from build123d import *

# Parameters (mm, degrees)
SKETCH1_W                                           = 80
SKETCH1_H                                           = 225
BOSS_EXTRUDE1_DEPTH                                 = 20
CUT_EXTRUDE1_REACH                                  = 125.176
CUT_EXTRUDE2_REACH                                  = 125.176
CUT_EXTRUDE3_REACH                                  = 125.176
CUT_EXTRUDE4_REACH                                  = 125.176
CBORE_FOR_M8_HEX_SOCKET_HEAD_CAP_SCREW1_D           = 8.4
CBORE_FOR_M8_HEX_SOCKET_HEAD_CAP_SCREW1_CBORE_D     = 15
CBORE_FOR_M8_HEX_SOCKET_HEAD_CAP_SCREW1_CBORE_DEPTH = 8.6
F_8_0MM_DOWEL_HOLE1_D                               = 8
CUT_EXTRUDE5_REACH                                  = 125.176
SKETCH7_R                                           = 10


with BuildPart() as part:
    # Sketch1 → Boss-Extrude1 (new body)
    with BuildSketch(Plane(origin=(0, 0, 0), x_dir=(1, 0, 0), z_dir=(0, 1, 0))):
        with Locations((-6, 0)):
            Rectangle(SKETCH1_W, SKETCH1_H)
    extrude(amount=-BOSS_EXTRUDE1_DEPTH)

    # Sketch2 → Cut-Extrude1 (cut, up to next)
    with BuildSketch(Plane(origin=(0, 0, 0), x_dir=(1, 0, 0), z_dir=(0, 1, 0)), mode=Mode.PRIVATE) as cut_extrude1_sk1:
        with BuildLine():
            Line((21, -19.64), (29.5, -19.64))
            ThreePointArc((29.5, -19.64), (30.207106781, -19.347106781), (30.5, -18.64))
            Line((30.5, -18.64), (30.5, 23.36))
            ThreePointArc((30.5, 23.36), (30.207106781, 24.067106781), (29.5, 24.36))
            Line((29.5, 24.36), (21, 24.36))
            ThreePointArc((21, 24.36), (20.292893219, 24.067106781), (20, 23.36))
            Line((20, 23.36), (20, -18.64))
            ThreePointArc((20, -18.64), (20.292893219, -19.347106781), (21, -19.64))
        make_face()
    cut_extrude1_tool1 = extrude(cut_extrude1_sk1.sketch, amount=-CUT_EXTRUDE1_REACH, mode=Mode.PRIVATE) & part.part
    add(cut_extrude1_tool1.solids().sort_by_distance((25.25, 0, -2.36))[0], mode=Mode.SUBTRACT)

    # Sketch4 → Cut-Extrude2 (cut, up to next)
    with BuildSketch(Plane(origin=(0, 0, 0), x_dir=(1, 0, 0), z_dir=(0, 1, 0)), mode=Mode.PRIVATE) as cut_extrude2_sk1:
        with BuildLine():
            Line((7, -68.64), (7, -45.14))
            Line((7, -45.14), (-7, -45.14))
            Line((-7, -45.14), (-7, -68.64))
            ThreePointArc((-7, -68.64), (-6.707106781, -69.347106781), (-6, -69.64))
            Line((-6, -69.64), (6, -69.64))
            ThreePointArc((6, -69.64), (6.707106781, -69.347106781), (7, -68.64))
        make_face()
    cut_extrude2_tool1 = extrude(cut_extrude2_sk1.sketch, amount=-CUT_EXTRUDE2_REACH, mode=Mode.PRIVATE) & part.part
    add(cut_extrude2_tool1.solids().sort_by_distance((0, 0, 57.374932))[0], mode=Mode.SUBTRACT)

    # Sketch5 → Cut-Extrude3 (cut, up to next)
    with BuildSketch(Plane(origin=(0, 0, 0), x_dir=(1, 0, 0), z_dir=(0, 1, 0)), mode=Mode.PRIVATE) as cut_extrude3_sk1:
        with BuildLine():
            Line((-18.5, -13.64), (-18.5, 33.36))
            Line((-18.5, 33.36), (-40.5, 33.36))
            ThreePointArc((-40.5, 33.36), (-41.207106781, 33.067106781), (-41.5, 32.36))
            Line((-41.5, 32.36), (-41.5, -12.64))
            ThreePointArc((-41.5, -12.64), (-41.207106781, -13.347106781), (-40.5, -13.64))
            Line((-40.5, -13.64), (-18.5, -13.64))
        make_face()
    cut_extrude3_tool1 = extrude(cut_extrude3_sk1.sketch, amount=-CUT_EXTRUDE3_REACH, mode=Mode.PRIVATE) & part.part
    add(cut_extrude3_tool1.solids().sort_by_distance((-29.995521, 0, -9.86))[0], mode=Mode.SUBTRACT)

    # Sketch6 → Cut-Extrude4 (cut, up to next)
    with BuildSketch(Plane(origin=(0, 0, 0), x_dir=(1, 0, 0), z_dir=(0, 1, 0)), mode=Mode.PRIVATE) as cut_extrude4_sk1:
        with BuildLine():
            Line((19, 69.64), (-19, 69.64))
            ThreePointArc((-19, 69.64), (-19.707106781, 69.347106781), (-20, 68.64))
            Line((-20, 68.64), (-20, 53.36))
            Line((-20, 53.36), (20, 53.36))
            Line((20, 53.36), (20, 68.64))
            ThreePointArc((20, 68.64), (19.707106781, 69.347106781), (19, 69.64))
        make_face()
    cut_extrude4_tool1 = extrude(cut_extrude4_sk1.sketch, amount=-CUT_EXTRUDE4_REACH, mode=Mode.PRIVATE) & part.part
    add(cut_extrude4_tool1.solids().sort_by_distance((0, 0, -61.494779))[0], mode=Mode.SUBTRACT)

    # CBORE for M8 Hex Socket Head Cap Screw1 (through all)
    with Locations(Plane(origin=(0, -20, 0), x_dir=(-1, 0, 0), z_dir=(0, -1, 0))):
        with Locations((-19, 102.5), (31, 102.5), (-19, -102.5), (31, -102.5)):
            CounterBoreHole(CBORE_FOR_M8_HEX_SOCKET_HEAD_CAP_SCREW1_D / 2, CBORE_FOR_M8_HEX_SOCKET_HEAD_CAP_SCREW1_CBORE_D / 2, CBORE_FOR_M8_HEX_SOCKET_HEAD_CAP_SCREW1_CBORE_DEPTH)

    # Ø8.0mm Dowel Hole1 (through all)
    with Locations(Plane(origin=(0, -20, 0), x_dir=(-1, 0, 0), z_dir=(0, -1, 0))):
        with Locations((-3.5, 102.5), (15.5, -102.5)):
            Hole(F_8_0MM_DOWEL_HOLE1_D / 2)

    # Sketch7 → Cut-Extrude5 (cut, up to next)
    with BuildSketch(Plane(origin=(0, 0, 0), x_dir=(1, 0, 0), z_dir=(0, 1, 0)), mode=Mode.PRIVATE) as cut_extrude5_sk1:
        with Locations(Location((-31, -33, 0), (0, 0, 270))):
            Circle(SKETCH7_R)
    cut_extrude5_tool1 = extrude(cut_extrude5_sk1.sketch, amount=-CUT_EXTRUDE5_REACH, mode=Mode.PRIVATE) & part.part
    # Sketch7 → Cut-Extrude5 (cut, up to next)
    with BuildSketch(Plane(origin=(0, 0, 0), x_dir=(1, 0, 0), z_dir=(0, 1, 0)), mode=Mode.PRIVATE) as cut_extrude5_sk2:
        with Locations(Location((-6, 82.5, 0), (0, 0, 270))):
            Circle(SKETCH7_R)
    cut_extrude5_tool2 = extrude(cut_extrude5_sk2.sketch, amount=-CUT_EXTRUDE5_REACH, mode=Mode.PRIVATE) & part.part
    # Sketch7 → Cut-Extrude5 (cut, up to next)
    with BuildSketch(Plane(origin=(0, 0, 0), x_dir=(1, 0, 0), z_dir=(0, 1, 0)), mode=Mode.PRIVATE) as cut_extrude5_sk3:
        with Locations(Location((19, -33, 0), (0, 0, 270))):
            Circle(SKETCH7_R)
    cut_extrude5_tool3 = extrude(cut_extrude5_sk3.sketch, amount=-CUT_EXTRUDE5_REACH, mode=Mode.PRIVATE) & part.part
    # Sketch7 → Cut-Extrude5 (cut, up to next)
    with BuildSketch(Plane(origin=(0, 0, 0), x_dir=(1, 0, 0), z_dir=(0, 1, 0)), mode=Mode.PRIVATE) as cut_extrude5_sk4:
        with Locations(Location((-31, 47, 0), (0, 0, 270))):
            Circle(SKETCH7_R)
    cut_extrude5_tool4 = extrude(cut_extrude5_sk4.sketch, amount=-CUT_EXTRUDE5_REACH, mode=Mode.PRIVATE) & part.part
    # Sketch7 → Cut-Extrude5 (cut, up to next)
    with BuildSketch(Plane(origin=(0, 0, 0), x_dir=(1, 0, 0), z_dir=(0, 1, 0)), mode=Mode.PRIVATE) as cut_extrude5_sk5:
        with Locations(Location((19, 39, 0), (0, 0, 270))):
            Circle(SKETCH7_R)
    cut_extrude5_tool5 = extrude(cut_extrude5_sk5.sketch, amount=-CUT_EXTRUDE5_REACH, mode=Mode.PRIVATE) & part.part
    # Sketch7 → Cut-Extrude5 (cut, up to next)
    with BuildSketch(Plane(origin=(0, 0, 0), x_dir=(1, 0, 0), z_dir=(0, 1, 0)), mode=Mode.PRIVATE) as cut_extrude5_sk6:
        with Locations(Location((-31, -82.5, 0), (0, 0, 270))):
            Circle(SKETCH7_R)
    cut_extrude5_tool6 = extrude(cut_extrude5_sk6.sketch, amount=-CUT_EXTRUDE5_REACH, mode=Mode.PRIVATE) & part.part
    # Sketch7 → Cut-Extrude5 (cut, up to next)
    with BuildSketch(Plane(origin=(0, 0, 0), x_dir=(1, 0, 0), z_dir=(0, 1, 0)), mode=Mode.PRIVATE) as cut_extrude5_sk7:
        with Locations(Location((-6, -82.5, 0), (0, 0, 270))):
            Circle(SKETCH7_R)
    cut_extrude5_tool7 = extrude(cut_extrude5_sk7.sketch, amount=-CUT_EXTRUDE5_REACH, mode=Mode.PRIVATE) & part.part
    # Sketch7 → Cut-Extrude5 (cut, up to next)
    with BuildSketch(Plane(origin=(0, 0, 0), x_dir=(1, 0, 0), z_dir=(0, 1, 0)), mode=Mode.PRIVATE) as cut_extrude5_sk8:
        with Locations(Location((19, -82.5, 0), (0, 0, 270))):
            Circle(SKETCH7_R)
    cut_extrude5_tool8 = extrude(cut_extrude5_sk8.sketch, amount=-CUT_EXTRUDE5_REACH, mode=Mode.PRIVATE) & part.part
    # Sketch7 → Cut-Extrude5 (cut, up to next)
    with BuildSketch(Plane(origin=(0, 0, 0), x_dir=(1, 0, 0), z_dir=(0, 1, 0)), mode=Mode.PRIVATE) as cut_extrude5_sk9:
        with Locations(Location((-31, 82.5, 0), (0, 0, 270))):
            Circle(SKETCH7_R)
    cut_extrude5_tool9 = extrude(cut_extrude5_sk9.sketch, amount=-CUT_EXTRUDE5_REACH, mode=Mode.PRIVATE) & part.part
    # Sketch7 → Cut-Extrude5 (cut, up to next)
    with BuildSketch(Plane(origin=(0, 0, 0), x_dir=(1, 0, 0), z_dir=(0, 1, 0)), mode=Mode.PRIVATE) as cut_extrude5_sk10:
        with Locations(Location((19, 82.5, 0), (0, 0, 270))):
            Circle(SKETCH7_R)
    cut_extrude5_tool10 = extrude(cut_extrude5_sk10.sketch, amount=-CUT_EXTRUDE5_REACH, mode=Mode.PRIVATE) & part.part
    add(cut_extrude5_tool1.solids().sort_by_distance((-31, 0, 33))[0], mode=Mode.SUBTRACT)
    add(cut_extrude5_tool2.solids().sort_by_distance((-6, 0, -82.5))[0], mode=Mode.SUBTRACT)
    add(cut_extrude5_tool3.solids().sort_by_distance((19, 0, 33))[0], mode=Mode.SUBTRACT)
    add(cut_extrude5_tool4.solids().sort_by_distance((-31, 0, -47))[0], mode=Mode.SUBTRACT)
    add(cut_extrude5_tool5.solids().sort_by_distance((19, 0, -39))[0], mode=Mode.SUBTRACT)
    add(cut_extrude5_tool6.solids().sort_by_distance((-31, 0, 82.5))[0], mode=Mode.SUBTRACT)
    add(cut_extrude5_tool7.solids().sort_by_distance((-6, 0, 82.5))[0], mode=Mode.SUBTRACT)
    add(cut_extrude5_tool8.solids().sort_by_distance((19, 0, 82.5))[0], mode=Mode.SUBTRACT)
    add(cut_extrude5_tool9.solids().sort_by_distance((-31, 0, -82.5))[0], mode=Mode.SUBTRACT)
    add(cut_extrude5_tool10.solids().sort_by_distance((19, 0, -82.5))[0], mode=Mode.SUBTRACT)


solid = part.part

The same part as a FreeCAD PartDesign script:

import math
import FreeCAD as App
import Part
import Sketcher

V = App.Vector


def add_polygon(sketch, points):
    """Adds a closed chain of lines whose ends are joined by coincident constraints."""
    first, n = sketch.GeometryCount, len(points)
    for a, b in zip(points, points[1:] + points[:1]):
        sketch.addGeometry(Part.LineSegment(App.Vector(*a, 0), App.Vector(*b, 0)), False)
    for i in range(n):
        sketch.addConstraint(Sketcher.Constraint("Coincident", first + i, 2, first + (i + 1) % n, 1))

doc = App.newDocument("Part")
params = doc.addObject("Spreadsheet::Sheet", "Params")
for row, (alias, value) in enumerate([
    ("sketch1_width", "80 mm"),
    ("sketch1_height", "225 mm"),
    ("pad1_length", "20 mm"),
    ("sketch2_radius", "1 mm"),
    ("sketch2_height", "42 mm"),
    ("sketch2_width", "8.5 mm"),
    ("sketch3_radius", "1 mm"),
    ("sketch3_width", "14 mm"),
    ("sketch3_height", "23.5 mm"),
    ("sketch4_radius", "1 mm"),
    ("sketch4_width", "22 mm"),
    ("sketch4_height", "47 mm"),
    ("sketch5_radius", "1 mm"),
    ("sketch5_width", "38 mm"),
    ("sketch5_height", "15.28 mm"),
    ("sketch6_diameter", "8.4 mm"),
    ("hole_diameter", "8.4 mm"),
    ("hole_cbore_diameter", "15 mm"),
    ("hole_cbore_depth", "8.6 mm"),
    ("sketch7_diameter", "8 mm"),
    ("hole2_diameter", "8 mm"),
    ("sketch8_diameter", "20 mm"),
    ("sketch9_diameter", "20 mm"),
    ("sketch10_diameter", "20 mm"),
    ("sketch11_diameter", "20 mm"),
    ("sketch12_diameter", "20 mm"),
    ("sketch13_diameter", "20 mm"),
    ("sketch14_diameter", "20 mm"),
    ("sketch15_diameter", "20 mm"),
    ("sketch16_diameter", "20 mm"),
    ("sketch17_diameter", "20 mm"),
], start=1):
    params.set(f"A{row}", alias)
    params.set(f"B{row}", "=" + value)
    params.setAlias(f"B{row}", alias)

body = doc.addObject("PartDesign::Body", "Body")

sketch1 = body.newObject("Sketcher::SketchObject", "Sketch")
sketch1.AttachmentSupport = (doc.getObject("XZ_Plane"), [""])
sketch1.MapMode = "FlatFace"
add_polygon(sketch1, [(-46, -112), (-46, 112), (34, 112), (34, -112)])
sketch1.addConstraint([
    Sketcher.Constraint("Vertical", 0),
    Sketcher.Constraint("Horizontal", 1),
    Sketcher.Constraint("Vertical", 2),
    Sketcher.Constraint("Horizontal", 3),
    Sketcher.Constraint("DistanceX", 1, 1, 1, 2, 80.0),
    Sketcher.Constraint("DistanceY", 0, 1, 0, 2, 225.0),
    Sketcher.Constraint("DistanceX", 0, 2, -1, 1, 46.0),
    Sketcher.Constraint("DistanceY", -1, 1, 0, 2, 112.5),
])
sketch1.setExpression("Constraints[8]", "Params.sketch1_width")
sketch1.setExpression("Constraints[9]", "Params.sketch1_height")
pad1 = body.newObject("PartDesign::Pad", "Pad")
pad1.Profile = sketch1
pad1.setExpression("Length", "Params.pad1_length")

sketch2 = body.newObject("Sketcher::SketchObject", "Sketch001")
sketch2.AttachmentSupport = (doc.getObject("XZ_Plane"), [""])
sketch2.MapMode = "FlatFace"
sketch2.addGeometry([
    Part.LineSegment(V(21, 19.6, 0), V(29.5, 19.6, 0)),
    Part.ArcOfCircle(Part.Circle(V(29.5, 18.6, 0), V(0, 0, 1), 1), math.radians(0), math.radians(90)),
    Part.LineSegment(V(30.5, 18.6, 0), V(30.5, -23.4, 0)),
    Part.ArcOfCircle(Part.Circle(V(29.5, -23.4, 0), V(0, 0, 1), 1), math.radians(-90), math.radians(0)),
    Part.LineSegment(V(29.5, -24.4, 0), V(21, -24.4, 0)),
    Part.ArcOfCircle(Part.Circle(V(21, -23.4, 0), V(0, 0, 1), 1), math.radians(-180), math.radians(-90)),
    Part.LineSegment(V(20, -23.4, 0), V(20, 18.6, 0)),
    Part.ArcOfCircle(Part.Circle(V(21, 18.6, 0), V(0, 0, 1), 1), math.radians(90), math.radians(180)),
], False)
sketch2.addConstraint([
    Sketcher.Constraint("Tangent", 0, 2, 1, 2),
    Sketcher.Constraint("Tangent", 1, 1, 2, 1),
    Sketcher.Constraint("Tangent", 2, 2, 3, 2),
    Sketcher.Constraint("Tangent", 3, 1, 4, 1),
    Sketcher.Constraint("Tangent", 4, 2, 5, 2),
    Sketcher.Constraint("Tangent", 5, 1, 6, 1),
    Sketcher.Constraint("Tangent", 6, 2, 7, 2),
    Sketcher.Constraint("Tangent", 7, 1, 0, 1),
    Sketcher.Constraint("Horizontal", 0),
    Sketcher.Constraint("Vertical", 2),
    Sketcher.Constraint("Horizontal", 4),
    Sketcher.Constraint("Vertical", 6),
    Sketcher.Constraint("Equal", 1, 3),
    Sketcher.Constraint("Equal", 3, 5),
    Sketcher.Constraint("Equal", 5, 7),
    Sketcher.Constraint("Radius", 1, 1.0),
    Sketcher.Constraint("DistanceY", 2, 2, 2, 1, 42.0),
    Sketcher.Constraint("DistanceX", 0, 1, 0, 2, 8.5),
    Sketcher.Constraint("DistanceX", -1, 1, 5, 3, 21.0),
    Sketcher.Constraint("DistanceY", -1, 1, 1, 3, 18.64),
])
sketch2.setExpression("Constraints[15]", "Params.sketch2_radius")
sketch2.setExpression("Constraints[16]", "Params.sketch2_height")
sketch2.setExpression("Constraints[17]", "Params.sketch2_width")
pocket1 = body.newObject("PartDesign::Pocket", "Pocket")
pocket1.Profile = sketch2
pocket1.Type = "UpToFirst"
pocket1.Reversed = True

sketch3 = body.newObject("Sketcher::SketchObject", "Sketch002")
sketch3.AttachmentSupport = (doc.getObject("XZ_Plane"), [""])
sketch3.MapMode = "FlatFace"
sketch3.addGeometry([
    Part.LineSegment(V(7, 68.6, 0), V(7, 45.1, 0)),
    Part.LineSegment(V(7, 45.1, 0), V(-7, 45.1, 0)),
    Part.LineSegment(V(-7, 45.1, 0), V(-7, 68.6, 0)),
    Part.ArcOfCircle(Part.Circle(V(-6, 68.6, 0), V(0, 0, 1), 1), math.radians(90), math.radians(180)),
    Part.LineSegment(V(-6, 69.6, 0), V(6, 69.6, 0)),
    Part.ArcOfCircle(Part.Circle(V(6, 68.6, 0), V(0, 0, 1), 1), math.radians(0), math.radians(90)),
], False)
sketch3.addConstraint([
    Sketcher.Constraint("Coincident", 0, 2, 1, 1),
    Sketcher.Constraint("Coincident", 1, 2, 2, 1),
    Sketcher.Constraint("Tangent", 2, 2, 3, 2),
    Sketcher.Constraint("Tangent", 3, 1, 4, 1),
    Sketcher.Constraint("Tangent", 4, 2, 5, 2),
    Sketcher.Constraint("Tangent", 5, 1, 0, 1),
    Sketcher.Constraint("Vertical", 0),
    Sketcher.Constraint("Horizontal", 1),
    Sketcher.Constraint("Vertical", 2),
    Sketcher.Constraint("Horizontal", 4),
    Sketcher.Constraint("Equal", 3, 5),
    Sketcher.Constraint("Radius", 3, 1.0),
    Sketcher.Constraint("DistanceX", 1, 2, 1, 1, 14.0),
    Sketcher.Constraint("DistanceY", 0, 2, 0, 1, 23.5),
    Sketcher.Constraint("DistanceX", 3, 3, -1, 1, 6.0),
    Sketcher.Constraint("DistanceY", -1, 1, 3, 3, 68.64),
])
sketch3.setExpression("Constraints[11]", "Params.sketch3_radius")
sketch3.setExpression("Constraints[12]", "Params.sketch3_width")
sketch3.setExpression("Constraints[13]", "Params.sketch3_height")
pocket2 = body.newObject("PartDesign::Pocket", "Pocket001")
pocket2.Profile = sketch3
pocket2.Type = "UpToFirst"
pocket2.Reversed = True

sketch4 = body.newObject("Sketcher::SketchObject", "Sketch003")
sketch4.AttachmentSupport = (doc.getObject("XZ_Plane"), [""])
sketch4.MapMode = "FlatFace"
sketch4.addGeometry([
    Part.LineSegment(V(-18.5, 13.6, 0), V(-18.5, -33.4, 0)),
    Part.LineSegment(V(-18.5, -33.4, 0), V(-40.5, -33.4, 0)),
    Part.ArcOfCircle(Part.Circle(V(-40.5, -32.4, 0), V(0, 0, 1), 1), math.radians(-180), math.radians(-90)),
    Part.LineSegment(V(-41.5, -32.4, 0), V(-41.5, 12.6, 0)),
    Part.ArcOfCircle(Part.Circle(V(-40.5, 12.6, 0), V(0, 0, 1), 1), math.radians(90), math.radians(180)),
    Part.LineSegment(V(-40.5, 13.6, 0), V(-18.5, 13.6, 0)),
], False)
sketch4.addConstraint([
    Sketcher.Constraint("Coincident", 0, 2, 1, 1),
    Sketcher.Constraint("Tangent", 1, 2, 2, 2),
    Sketcher.Constraint("Tangent", 2, 1, 3, 1),
    Sketcher.Constraint("Tangent", 3, 2, 4, 2),
    Sketcher.Constraint("Tangent", 4, 1, 5, 1),
    Sketcher.Constraint("Coincident", 5, 2, 0, 1),
    Sketcher.Constraint("Vertical", 0),
    Sketcher.Constraint("Horizontal", 1),
    Sketcher.Constraint("Vertical", 3),
    Sketcher.Constraint("Horizontal", 5),
    Sketcher.Constraint("Equal", 2, 4),
    Sketcher.Constraint("Radius", 2, 1.0),
    Sketcher.Constraint("DistanceX", 1, 2, 1, 1, 22.0),
    Sketcher.Constraint("DistanceY", 0, 2, 0, 1, 47.0),
    Sketcher.Constraint("DistanceX", 2, 3, -1, 1, 40.5),
    Sketcher.Constraint("DistanceY", 2, 3, -1, 1, 32.36),
])
sketch4.setExpression("Constraints[11]", "Params.sketch4_radius")
sketch4.setExpression("Constraints[12]", "Params.sketch4_width")
sketch4.setExpression("Constraints[13]", "Params.sketch4_height")
pocket3 = body.newObject("PartDesign::Pocket", "Pocket002")
pocket3.Profile = sketch4
pocket3.Type = "UpToFirst"
pocket3.Reversed = True

sketch5 = body.newObject("Sketcher::SketchObject", "Sketch004")
sketch5.AttachmentSupport = (doc.getObject("XZ_Plane"), [""])
sketch5.MapMode = "FlatFace"
sketch5.addGeometry([
    Part.LineSegment(V(19, -69.6, 0), V(-19, -69.6, 0)),
    Part.ArcOfCircle(Part.Circle(V(-19, -68.6, 0), V(0, 0, 1), 1), math.radians(-180), math.radians(-90)),
    Part.LineSegment(V(-20, -68.6, 0), V(-20, -53.4, 0)),
    Part.LineSegment(V(-20, -53.4, 0), V(20, -53.4, 0)),
    Part.LineSegment(V(20, -53.4, 0), V(20, -68.6, 0)),
    Part.ArcOfCircle(Part.Circle(V(19, -68.6, 0), V(0, 0, 1), 1), math.radians(-90), math.radians(0)),
], False)
sketch5.addConstraint([
    Sketcher.Constraint("Tangent", 0, 2, 1, 2),
    Sketcher.Constraint("Tangent", 1, 1, 2, 1),
    Sketcher.Constraint("Coincident", 2, 2, 3, 1),
    Sketcher.Constraint("Coincident", 3, 2, 4, 1),
    Sketcher.Constraint("Tangent", 4, 2, 5, 2),
    Sketcher.Constraint("Tangent", 5, 1, 0, 1),
    Sketcher.Constraint("Horizontal", 0),
    Sketcher.Constraint("Vertical", 2),
    Sketcher.Constraint("Horizontal", 3),
    Sketcher.Constraint("Vertical", 4),
    Sketcher.Constraint("Equal", 1, 5),
    Sketcher.Constraint("Radius", 1, 1.0),
    Sketcher.Constraint("DistanceX", 0, 2, 0, 1, 38.0),
    Sketcher.Constraint("DistanceX", 1, 3, -1, 1, 19.0),
    Sketcher.Constraint("DistanceY", 2, 1, 2, 2, 15.28),
    Sketcher.Constraint("DistanceY", 1, 3, -1, 1, 68.64),
])
sketch5.setExpression("Constraints[11]", "Params.sketch5_radius")
sketch5.setExpression("Constraints[12]", "Params.sketch5_width")
sketch5.setExpression("Constraints[14]", "Params.sketch5_height")
pocket4 = body.newObject("PartDesign::Pocket", "Pocket003")
pocket4.Profile = sketch5
pocket4.Type = "UpToFirst"
pocket4.Reversed = True

sketch6 = body.newObject("Sketcher::SketchObject", "Sketch005")
sketch6.AttachmentSupport = (doc.getObject("XZ_Plane"), [""])
sketch6.MapMode = "FlatFace"
sketch6.AttachmentOffset = App.Placement(V(0, 0, 20), App.Rotation())
sketch6.addGeometry([
    Part.Circle(V(19, -102.5, 0), V(0, 0, 1), 4.2),
    Part.Circle(V(-31, -102.5, 0), V(0, 0, 1), 4.2),
    Part.Circle(V(19, 102.5, 0), V(0, 0, 1), 4.2),
    Part.Circle(V(-31, 102.5, 0), V(0, 0, 1), 4.2),
], False)
sketch6.addConstraint([
    Sketcher.Constraint("Equal", 0, 1),
    Sketcher.Constraint("Equal", 1, 2),
    Sketcher.Constraint("Equal", 2, 3),
    Sketcher.Constraint("Symmetric", 0, 3, 2, 3, -1),
    Sketcher.Constraint("Symmetric", 1, 3, 3, 3, -1),
    Sketcher.Constraint("Horizontal", 0, 3, 1, 3),
    Sketcher.Constraint("Diameter", 0, 8.4),
    Sketcher.Constraint("DistanceX", -1, 1, 0, 3, 19.0),
    Sketcher.Constraint("DistanceX", 1, 3, -1, 1, 31.0),
    Sketcher.Constraint("DistanceY", 0, 3, 2, 3, 205.0),
])
sketch6.setExpression("Constraints[6]", "Params.sketch6_diameter")
doc.recompute()
hole = body.newObject("PartDesign::Hole", "Hole")
hole.Profile = sketch6
hole.ThreadType = "None"
hole.setExpression("Diameter", "Params.hole_diameter")
hole.DepthType = "ThroughAll"
hole.HoleCutType = "Counterbore"
hole.setExpression("HoleCutDiameter", "Params.hole_cbore_diameter")
hole.setExpression("HoleCutDepth", "Params.hole_cbore_depth")

sketch7 = body.newObject("Sketcher::SketchObject", "Sketch006")
sketch7.AttachmentSupport = (doc.getObject("XZ_Plane"), [""])
sketch7.MapMode = "FlatFace"
sketch7.AttachmentOffset = App.Placement(V(0, 0, 20), App.Rotation())
sketch7.addGeometry([
    Part.Circle(V(3.5, -102.5, 0), V(0, 0, 1), 4),
    Part.Circle(V(-15.5, 102.5, 0), V(0, 0, 1), 4),
], False)
sketch7.addConstraint([
    Sketcher.Constraint("Equal", 0, 1),
    Sketcher.Constraint("Diameter", 0, 8.0),
    Sketcher.Constraint("DistanceX", 1, 3, 0, 3, 19.0),
    Sketcher.Constraint("DistanceY", 0, 3, 1, 3, 205.0),
    Sketcher.Constraint("DistanceX", -1, 1, 0, 3, 3.5),
    Sketcher.Constraint("DistanceY", 0, 3, -1, 1, 102.5),
])
sketch7.setExpression("Constraints[1]", "Params.sketch7_diameter")
doc.recompute()
hole2 = body.newObject("PartDesign::Hole", "Hole001")
hole2.Profile = sketch7
hole2.ThreadType = "None"
hole2.setExpression("Diameter", "Params.hole2_diameter")
hole2.DepthType = "ThroughAll"

sketch8 = body.newObject("Sketcher::SketchObject", "Sketch007")
sketch8.AttachmentSupport = (doc.getObject("XZ_Plane"), [""])
sketch8.MapMode = "FlatFace"
sketch8.addGeometry(Part.Circle(V(-31, 33, 0), V(0, 0, 1), 10), False)
sketch8.addConstraint([
    Sketcher.Constraint("Diameter", 0, 20.0),
    Sketcher.Constraint("DistanceX", 0, 3, -1, 1, 31.0),
    Sketcher.Constraint("DistanceY", -1, 1, 0, 3, 33.0),
])
sketch8.setExpression("Constraints[0]", "Params.sketch8_diameter")
pocket5 = body.newObject("PartDesign::Pocket", "Pocket004")
pocket5.Profile = sketch8
pocket5.Type = "UpToFirst"
pocket5.Reversed = True

sketch9 = body.newObject("Sketcher::SketchObject", "Sketch008")
sketch9.AttachmentSupport = (doc.getObject("XZ_Plane"), [""])
sketch9.MapMode = "FlatFace"
sketch9.addGeometry(Part.Circle(V(-6, -82, 0), V(0, 0, 1), 10), False)
sketch9.addConstraint([
    Sketcher.Constraint("Diameter", 0, 20.0),
    Sketcher.Constraint("DistanceX", 0, 3, -1, 1, 6.0),
    Sketcher.Constraint("DistanceY", 0, 3, -1, 1, 82.5),
])
sketch9.setExpression("Constraints[0]", "Params.sketch9_diameter")
pocket6 = body.newObject("PartDesign::Pocket", "Pocket005")
pocket6.Profile = sketch9
pocket6.Type = "UpToFirst"
pocket6.Reversed = True

sketch10 = body.newObject("Sketcher::SketchObject", "Sketch009")
sketch10.AttachmentSupport = (doc.getObject("XZ_Plane"), [""])
sketch10.MapMode = "FlatFace"
sketch10.addGeometry(Part.Circle(V(19, 33, 0), V(0, 0, 1), 10), False)
sketch10.addConstraint([
    Sketcher.Constraint("Diameter", 0, 20.0),
    Sketcher.Constraint("DistanceX", -1, 1, 0, 3, 19.0),
    Sketcher.Constraint("DistanceY", -1, 1, 0, 3, 33.0),
])
sketch10.setExpression("Constraints[0]", "Params.sketch10_diameter")
pocket7 = body.newObject("PartDesign::Pocket", "Pocket006")
pocket7.Profile = sketch10
pocket7.Type = "UpToFirst"
pocket7.Reversed = True

sketch11 = body.newObject("Sketcher::SketchObject", "Sketch010")
sketch11.AttachmentSupport = (doc.getObject("XZ_Plane"), [""])
sketch11.MapMode = "FlatFace"
sketch11.addGeometry(Part.Circle(V(-31, -47, 0), V(0, 0, 1), 10), False)
sketch11.addConstraint([
    Sketcher.Constraint("Diameter", 0, 20.0),
    Sketcher.Constraint("DistanceX", 0, 3, -1, 1, 31.0),
    Sketcher.Constraint("DistanceY", 0, 3, -1, 1, 47.0),
])
sketch11.setExpression("Constraints[0]", "Params.sketch11_diameter")
pocket8 = body.newObject("PartDesign::Pocket", "Pocket007")
pocket8.Profile = sketch11
pocket8.Type = "UpToFirst"
pocket8.Reversed = True

sketch12 = body.newObject("Sketcher::SketchObject", "Sketch011")
sketch12.AttachmentSupport = (doc.getObject("XZ_Plane"), [""])
sketch12.MapMode = "FlatFace"
sketch12.addGeometry(Part.Circle(V(19, -39, 0), V(0, 0, 1), 10), False)
sketch12.addConstraint([
    Sketcher.Constraint("Diameter", 0, 20.0),
    Sketcher.Constraint("DistanceX", -1, 1, 0, 3, 19.0),
    Sketcher.Constraint("DistanceY", 0, 3, -1, 1, 39.0),
])
sketch12.setExpression("Constraints[0]", "Params.sketch12_diameter")
pocket9 = body.newObject("PartDesign::Pocket", "Pocket008")
pocket9.Profile = sketch12
pocket9.Type = "UpToFirst"
pocket9.Reversed = True

sketch13 = body.newObject("Sketcher::SketchObject", "Sketch012")
sketch13.AttachmentSupport = (doc.getObject("XZ_Plane"), [""])
sketch13.MapMode = "FlatFace"
sketch13.addGeometry(Part.Circle(V(-31, 82, 0), V(0, 0, 1), 10), False)
sketch13.addConstraint([
    Sketcher.Constraint("Diameter", 0, 20.0),
    Sketcher.Constraint("DistanceX", 0, 3, -1, 1, 31.0),
    Sketcher.Constraint("DistanceY", -1, 1, 0, 3, 82.5),
])
sketch13.setExpression("Constraints[0]", "Params.sketch13_diameter")
pocket10 = body.newObject("PartDesign::Pocket", "Pocket009")
pocket10.Profile = sketch13
pocket10.Type = "UpToFirst"
pocket10.Reversed = True

sketch14 = body.newObject("Sketcher::SketchObject", "Sketch013")
sketch14.AttachmentSupport = (doc.getObject("XZ_Plane"), [""])
sketch14.MapMode = "FlatFace"
sketch14.addGeometry(Part.Circle(V(-6, 82, 0), V(0, 0, 1), 10), False)
sketch14.addConstraint([
    Sketcher.Constraint("Diameter", 0, 20.0),
    Sketcher.Constraint("DistanceX", 0, 3, -1, 1, 6.0),
    Sketcher.Constraint("DistanceY", -1, 1, 0, 3, 82.5),
])
sketch14.setExpression("Constraints[0]", "Params.sketch14_diameter")
pocket11 = body.newObject("PartDesign::Pocket", "Pocket010")
pocket11.Profile = sketch14
pocket11.Type = "UpToFirst"
pocket11.Reversed = True

sketch15 = body.newObject("Sketcher::SketchObject", "Sketch014")
sketch15.AttachmentSupport = (doc.getObject("XZ_Plane"), [""])
sketch15.MapMode = "FlatFace"
sketch15.addGeometry(Part.Circle(V(19, 82, 0), V(0, 0, 1), 10), False)
sketch15.addConstraint([
    Sketcher.Constraint("Diameter", 0, 20.0),
    Sketcher.Constraint("DistanceX", -1, 1, 0, 3, 19.0),
    Sketcher.Constraint("DistanceY", -1, 1, 0, 3, 82.5),
])
sketch15.setExpression("Constraints[0]", "Params.sketch15_diameter")
pocket12 = body.newObject("PartDesign::Pocket", "Pocket011")
pocket12.Profile = sketch15
pocket12.Type = "UpToFirst"
pocket12.Reversed = True

sketch16 = body.newObject("Sketcher::SketchObject", "Sketch015")
sketch16.AttachmentSupport = (doc.getObject("XZ_Plane"), [""])
sketch16.MapMode = "FlatFace"
sketch16.addGeometry(Part.Circle(V(-31, -82, 0), V(0, 0, 1), 10), False)
sketch16.addConstraint([
    Sketcher.Constraint("Diameter", 0, 20.0),
    Sketcher.Constraint("DistanceX", 0, 3, -1, 1, 31.0),
    Sketcher.Constraint("DistanceY", 0, 3, -1, 1, 82.5),
])
sketch16.setExpression("Constraints[0]", "Params.sketch16_diameter")
pocket13 = body.newObject("PartDesign::Pocket", "Pocket012")
pocket13.Profile = sketch16
pocket13.Type = "UpToFirst"
pocket13.Reversed = True

sketch17 = body.newObject("Sketcher::SketchObject", "Sketch016")
sketch17.AttachmentSupport = (doc.getObject("XZ_Plane"), [""])
sketch17.MapMode = "FlatFace"
sketch17.addGeometry(Part.Circle(V(19, -82, 0), V(0, 0, 1), 10), False)
sketch17.addConstraint([
    Sketcher.Constraint("Diameter", 0, 20.0),
    Sketcher.Constraint("DistanceX", -1, 1, 0, 3, 19.0),
    Sketcher.Constraint("DistanceY", 0, 3, -1, 1, 82.5),
])
sketch17.setExpression("Constraints[0]", "Params.sketch17_diameter")
pocket14 = body.newObject("PartDesign::Pocket", "Pocket013")
pocket14.Profile = sketch17
pocket14.Type = "UpToFirst"
pocket14.Reversed = True

doc.recompute()
